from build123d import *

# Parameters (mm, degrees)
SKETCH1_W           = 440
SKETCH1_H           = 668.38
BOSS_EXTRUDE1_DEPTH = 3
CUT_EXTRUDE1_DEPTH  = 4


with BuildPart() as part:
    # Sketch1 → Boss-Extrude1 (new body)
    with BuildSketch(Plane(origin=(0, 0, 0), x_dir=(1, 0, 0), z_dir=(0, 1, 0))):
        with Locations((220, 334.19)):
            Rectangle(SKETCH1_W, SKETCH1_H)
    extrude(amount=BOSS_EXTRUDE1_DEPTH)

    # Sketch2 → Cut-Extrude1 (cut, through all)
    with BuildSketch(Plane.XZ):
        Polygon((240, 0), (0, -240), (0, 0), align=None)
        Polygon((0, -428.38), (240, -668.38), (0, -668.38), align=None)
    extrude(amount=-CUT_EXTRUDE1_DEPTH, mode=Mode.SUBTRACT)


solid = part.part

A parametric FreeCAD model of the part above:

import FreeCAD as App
import Part
import Sketcher


def add_polygon(sketch, points):
    """Adds a closed chain of lines whose ends are joined by coincident constraints."""
    first, n = sketch.GeometryCount, len(points)
    for a, b in zip(points, points[1:] + points[:1]):
        sketch.addGeometry(Part.LineSegment(App.Vector(*a, 0), App.Vector(*b, 0)), False)
    for i in range(n):
        sketch.addConstraint(Sketcher.Constraint("Coincident", first + i, 2, first + (i + 1) % n, 1))

doc = App.newDocument("Part")
body = doc.addObject("PartDesign::Body", "Body")

# Sketch on XZ plane
sketch1 = body.newObject("Sketcher::SketchObject", "Sketch")
sketch1.AttachmentSupport = (doc.getObject("XZ_Plane"), [""])
sketch1.MapMode = "FlatFace"
add_polygon(sketch1, [(0, -668.38), (0, 0), (440, 0), (440, -668.38)])  # lines 0-3
sketch1.addConstraint([
    Sketcher.Constraint("Vertical", 0),
    Sketcher.Constraint("Horizontal", 1),
    Sketcher.Constraint("Vertical", 2),
    Sketcher.Constraint("Horizontal", 3),
    Sketcher.Constraint("Coincident", 0, 2, -1, 1),
    Sketcher.Constraint("DistanceX", 1, 1, 1, 2, 440.0),
    Sketcher.Constraint("DistanceY", 0, 1, 0, 2, 668.38),
])
pad1 = body.newObject("PartDesign::Pad", "Pad")
pad1.Profile = sketch1
pad1.Length = 3
pad1.Reversed = True

# Sketch on XZ plane
sketch2 = body.newObject("Sketcher::SketchObject", "Sketch001")
sketch2.AttachmentSupport = (doc.getObject("XZ_Plane"), [""])
sketch2.MapMode = "FlatFace"
add_polygon(sketch2, [(0, -240), (240, 0), (0, 0)])  # lines 0-2
add_polygon(sketch2, [(240, -668.38), (0, -428.38), (0, -668.38)])  # lines 3-5
sketch2.addConstraint([
    Sketcher.Constraint("Horizontal", 1),
    Sketcher.Constraint("Vertical", 2),
    Sketcher.Constraint("Vertical", 4),
    Sketcher.Constraint("Horizontal", 5),
    Sketcher.Constraint("Coincident", 1, 2, -1, 1),
    Sketcher.Constraint("PointOnObject", 3, 2, -2),
    Sketcher.Constraint("Perpendicular", 0, 3),
    Sketcher.Constraint("Vertical", 0, 2, 5, 2),
    Sketcher.Constraint("Equal", 5, 2),
    Sketcher.Constraint("DistanceX", 1, 2, 1, 1, 240.0),
    Sketcher.Constraint("DistanceY", 3, 2, -1, 1, 428.38),
])
pocket1 = body.newObject("PartDesign::Pocket", "Pocket")
pocket1.Profile = sketch2
pocket1.Type = "ThroughAll"

doc.recompute()
